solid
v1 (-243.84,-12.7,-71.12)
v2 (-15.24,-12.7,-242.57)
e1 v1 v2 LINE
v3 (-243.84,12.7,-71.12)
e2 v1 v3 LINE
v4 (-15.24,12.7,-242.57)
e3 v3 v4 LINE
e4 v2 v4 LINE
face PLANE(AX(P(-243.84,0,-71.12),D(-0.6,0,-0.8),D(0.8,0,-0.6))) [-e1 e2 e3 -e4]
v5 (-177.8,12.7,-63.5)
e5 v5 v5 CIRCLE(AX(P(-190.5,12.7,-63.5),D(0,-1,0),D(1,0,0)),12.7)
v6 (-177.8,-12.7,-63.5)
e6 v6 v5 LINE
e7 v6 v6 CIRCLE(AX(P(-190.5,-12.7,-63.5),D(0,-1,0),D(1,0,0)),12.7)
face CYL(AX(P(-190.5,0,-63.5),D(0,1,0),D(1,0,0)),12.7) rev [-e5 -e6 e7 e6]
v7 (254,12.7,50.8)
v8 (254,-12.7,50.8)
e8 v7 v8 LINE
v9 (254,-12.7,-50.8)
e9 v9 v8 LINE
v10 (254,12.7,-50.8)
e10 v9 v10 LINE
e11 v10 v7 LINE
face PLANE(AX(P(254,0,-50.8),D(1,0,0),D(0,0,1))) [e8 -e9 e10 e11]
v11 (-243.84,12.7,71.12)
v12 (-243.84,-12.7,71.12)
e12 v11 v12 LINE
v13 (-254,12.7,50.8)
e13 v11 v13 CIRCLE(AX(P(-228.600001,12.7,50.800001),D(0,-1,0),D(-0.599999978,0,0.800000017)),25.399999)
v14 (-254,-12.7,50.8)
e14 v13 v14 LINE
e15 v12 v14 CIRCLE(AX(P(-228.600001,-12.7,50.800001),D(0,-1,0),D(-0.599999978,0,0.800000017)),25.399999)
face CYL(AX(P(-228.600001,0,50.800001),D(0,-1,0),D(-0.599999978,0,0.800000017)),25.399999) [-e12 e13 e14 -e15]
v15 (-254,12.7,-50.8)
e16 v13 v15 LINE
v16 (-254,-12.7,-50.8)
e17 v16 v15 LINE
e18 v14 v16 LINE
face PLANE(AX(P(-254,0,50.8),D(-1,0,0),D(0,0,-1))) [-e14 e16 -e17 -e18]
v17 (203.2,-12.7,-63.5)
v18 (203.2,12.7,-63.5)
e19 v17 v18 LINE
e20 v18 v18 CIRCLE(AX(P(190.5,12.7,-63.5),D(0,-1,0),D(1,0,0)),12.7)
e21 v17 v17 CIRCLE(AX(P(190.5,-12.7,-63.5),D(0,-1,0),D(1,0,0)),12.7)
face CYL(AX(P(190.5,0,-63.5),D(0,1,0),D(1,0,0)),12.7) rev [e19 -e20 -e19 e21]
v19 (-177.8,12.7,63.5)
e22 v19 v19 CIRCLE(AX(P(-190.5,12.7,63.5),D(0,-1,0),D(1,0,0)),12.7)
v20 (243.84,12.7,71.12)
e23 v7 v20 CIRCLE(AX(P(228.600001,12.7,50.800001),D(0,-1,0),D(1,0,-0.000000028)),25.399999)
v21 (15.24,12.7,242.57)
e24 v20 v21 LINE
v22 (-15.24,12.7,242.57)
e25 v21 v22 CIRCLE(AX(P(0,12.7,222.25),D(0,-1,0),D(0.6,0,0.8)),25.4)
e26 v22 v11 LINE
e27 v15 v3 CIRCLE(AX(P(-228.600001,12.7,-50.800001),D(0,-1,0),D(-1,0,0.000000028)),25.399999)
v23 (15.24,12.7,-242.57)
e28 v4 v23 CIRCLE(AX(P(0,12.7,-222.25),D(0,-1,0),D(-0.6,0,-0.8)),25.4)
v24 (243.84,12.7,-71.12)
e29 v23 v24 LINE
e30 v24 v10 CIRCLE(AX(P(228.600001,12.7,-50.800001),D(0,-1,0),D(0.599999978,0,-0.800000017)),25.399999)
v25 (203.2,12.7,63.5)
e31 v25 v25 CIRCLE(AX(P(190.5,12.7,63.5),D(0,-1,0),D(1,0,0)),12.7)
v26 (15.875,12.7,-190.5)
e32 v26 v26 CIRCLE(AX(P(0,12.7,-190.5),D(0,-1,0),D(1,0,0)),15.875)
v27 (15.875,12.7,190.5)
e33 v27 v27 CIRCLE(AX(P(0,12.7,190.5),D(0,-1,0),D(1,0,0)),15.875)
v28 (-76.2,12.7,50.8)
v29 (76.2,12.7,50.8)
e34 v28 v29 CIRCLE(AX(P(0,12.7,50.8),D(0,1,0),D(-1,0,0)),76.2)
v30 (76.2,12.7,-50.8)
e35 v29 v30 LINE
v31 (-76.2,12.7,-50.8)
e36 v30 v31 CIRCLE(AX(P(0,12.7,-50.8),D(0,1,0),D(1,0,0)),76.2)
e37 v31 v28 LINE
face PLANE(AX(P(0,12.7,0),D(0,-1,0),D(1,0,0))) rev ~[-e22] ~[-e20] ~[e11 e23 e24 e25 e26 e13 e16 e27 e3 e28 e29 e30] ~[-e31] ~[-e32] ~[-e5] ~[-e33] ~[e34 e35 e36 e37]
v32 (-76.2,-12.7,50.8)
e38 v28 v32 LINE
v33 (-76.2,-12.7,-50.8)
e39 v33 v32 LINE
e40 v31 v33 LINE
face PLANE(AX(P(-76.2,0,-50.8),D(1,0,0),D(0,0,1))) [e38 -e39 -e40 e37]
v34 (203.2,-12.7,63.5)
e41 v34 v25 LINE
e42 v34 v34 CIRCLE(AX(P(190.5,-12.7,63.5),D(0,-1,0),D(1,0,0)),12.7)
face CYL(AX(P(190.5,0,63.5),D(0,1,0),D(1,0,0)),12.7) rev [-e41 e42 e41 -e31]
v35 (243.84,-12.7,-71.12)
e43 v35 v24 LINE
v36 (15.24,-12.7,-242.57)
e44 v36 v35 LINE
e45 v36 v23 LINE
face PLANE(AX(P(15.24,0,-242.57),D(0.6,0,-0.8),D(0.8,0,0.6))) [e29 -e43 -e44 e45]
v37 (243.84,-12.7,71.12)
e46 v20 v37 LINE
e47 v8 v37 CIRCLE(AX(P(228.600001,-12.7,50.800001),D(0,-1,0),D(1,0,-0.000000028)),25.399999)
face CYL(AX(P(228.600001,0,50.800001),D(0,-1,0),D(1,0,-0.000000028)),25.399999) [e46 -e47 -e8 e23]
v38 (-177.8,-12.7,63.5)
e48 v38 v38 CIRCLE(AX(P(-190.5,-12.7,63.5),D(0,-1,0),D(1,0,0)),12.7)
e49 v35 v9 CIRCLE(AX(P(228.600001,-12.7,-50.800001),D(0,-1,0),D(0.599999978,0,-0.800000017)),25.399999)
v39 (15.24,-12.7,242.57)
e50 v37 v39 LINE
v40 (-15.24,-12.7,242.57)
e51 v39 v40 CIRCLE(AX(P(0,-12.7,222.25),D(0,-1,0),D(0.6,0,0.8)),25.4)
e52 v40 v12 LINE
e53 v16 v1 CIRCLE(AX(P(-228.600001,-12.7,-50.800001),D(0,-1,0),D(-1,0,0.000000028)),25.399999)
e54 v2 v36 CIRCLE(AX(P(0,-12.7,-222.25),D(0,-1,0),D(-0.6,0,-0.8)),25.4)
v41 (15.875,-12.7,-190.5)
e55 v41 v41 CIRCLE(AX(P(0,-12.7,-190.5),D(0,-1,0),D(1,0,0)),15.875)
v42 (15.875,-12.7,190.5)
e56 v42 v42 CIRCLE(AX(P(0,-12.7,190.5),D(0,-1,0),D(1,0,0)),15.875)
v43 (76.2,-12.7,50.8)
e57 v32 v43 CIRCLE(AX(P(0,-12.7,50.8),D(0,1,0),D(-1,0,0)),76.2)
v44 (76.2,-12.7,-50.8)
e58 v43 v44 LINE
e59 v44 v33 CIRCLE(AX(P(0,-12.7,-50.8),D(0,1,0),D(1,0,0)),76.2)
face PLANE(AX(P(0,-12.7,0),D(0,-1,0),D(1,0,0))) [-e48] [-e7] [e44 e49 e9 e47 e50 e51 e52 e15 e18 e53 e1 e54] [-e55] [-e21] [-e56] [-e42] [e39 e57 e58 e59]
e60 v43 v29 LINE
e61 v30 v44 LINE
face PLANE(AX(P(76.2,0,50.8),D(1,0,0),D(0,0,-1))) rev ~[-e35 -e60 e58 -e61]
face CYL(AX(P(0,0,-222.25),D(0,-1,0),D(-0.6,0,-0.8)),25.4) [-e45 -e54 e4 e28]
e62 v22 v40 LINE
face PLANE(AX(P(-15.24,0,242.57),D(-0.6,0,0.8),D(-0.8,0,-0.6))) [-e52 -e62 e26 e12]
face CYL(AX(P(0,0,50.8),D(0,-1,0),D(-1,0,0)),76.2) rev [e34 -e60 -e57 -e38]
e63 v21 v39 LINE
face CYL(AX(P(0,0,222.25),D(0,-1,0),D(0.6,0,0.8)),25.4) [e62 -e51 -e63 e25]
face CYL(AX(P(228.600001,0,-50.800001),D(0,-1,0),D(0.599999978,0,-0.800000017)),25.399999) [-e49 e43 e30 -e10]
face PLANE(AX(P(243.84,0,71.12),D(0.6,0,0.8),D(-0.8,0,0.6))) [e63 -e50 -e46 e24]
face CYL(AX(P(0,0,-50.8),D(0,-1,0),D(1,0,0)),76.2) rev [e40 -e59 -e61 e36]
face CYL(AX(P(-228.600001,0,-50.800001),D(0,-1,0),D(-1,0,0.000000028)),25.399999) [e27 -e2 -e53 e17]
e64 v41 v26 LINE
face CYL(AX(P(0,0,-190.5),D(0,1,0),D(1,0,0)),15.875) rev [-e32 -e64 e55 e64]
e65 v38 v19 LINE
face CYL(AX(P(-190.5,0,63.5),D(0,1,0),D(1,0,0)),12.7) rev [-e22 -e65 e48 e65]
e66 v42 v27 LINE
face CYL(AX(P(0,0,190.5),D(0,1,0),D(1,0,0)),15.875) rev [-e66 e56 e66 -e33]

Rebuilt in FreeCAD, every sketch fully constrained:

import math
import FreeCAD as App
import Part
import Sketcher

V = App.Vector
Q = App.Units.Quantity

doc = App.newDocument("Part")
body = doc.addObject("PartDesign::Body", "Body")

# Sketch on XZ plane
sketch1 = body.newObject("Sketcher::SketchObject", "Sketch")
sketch1.AttachmentSupport = (doc.getObject("XZ_Plane"), [""])
sketch1.MapMode = "FlatFace"
sketch1.addGeometry([
    Part.LineSegment(V(254, -50.8, 0), V(254, 50.8, 0)),  # 0
    Part.ArcOfCircle(Part.Circle(V(228.600001, 50.800001, 0), V(0, 0, 1), 25.399999), math.radians(-0.000002), math.radians(53.130104)),  # 1
    Part.LineSegment(V(243.84, 71.12, 0), V(15.24, 242.57, 0)),  # 2
    Part.ArcOfCircle(Part.Circle(V(0, 222.25, 0), V(0, 0, 1), 25.4), math.radians(53.130102), math.radians(126.869898)),  # 3
    Part.LineSegment(V(-15.24, 242.57, 0), V(-243.84, 71.12, 0)),  # 4
    Part.ArcOfCircle(Part.Circle(V(-228.600001, 50.800001, 0), V(0, 0, 1), 25.399999), math.radians(126.869896), math.radians(180.000002)),  # 5
    Part.LineSegment(V(-254, 50.8, 0), V(-254, -50.8, 0)),  # 6
    Part.ArcOfCircle(Part.Circle(V(-228.600001, -50.800001, 0), V(0, 0, 1), 25.399999), math.radians(179.999998), math.radians(233.130104)),  # 7
    Part.LineSegment(V(-243.84, -71.12, 0), V(-15.24, -242.57, 0)),  # 8
    Part.ArcOfCircle(Part.Circle(V(0, -222.25, 0), V(0, 0, 1), 25.4), math.radians(-126.869898), math.radians(-53.130102)),  # 9
    Part.LineSegment(V(15.24, -242.57, 0), V(243.84, -71.12, 0)),  # 10
    Part.ArcOfCircle(Part.Circle(V(228.600001, -50.800001, 0), V(0, 0, 1), 25.399999), math.radians(-53.130104), math.radians(0.000002)),  # 11
    Part.Circle(V(0, -190.5, 0), V(0, 0, 1), 15.875),  # 12
    Part.Circle(V(-190.5, -63.5, 0), V(0, 0, 1), 12.7),  # 13
    Part.Circle(V(190.5, -63.5, 0), V(0, 0, 1), 12.7),  # 14
    Part.Circle(V(-190.5, 63.5, 0), V(0, 0, 1), 12.7),  # 15
    Part.LineSegment(V(-76.2, -50.8, 0), V(-76.2, 50.8, 0)),  # 16
    Part.ArcOfCircle(Part.Circle(V(0, 50.8, 0), V(0, 0, 1), 76.2), math.radians(0), math.radians(180)),  # 17
    Part.LineSegment(V(76.2, 50.8, 0), V(76.2, -50.8, 0)),  # 18
    Part.ArcOfCircle(Part.Circle(V(0, -50.8, 0), V(0, 0, 1), 76.2), math.radians(180), math.radians(360)),  # 19
    Part.Circle(V(0, 190.5, 0), V(0, 0, 1), 15.875),  # 20
    Part.Circle(V(190.5, 63.5, 0), V(0, 0, 1), 12.7),  # 21
], False)
sketch1.addConstraint([
    Sketcher.Constraint("Coincident", 0, 2, 1, 1),
    Sketcher.Constraint("Coincident", 1, 2, 2, 1),
    Sketcher.Constraint("Coincident", 2, 2, 3, 1),
    Sketcher.Constraint("Coincident", 3, 2, 4, 1),
    Sketcher.Constraint("Coincident", 4, 2, 5, 1),
    Sketcher.Constraint("Coincident", 5, 2, 6, 1),
    Sketcher.Constraint("Coincident", 6, 2, 7, 1),
    Sketcher.Constraint("Coincident", 7, 2, 8, 1),
    Sketcher.Constraint("Coincident", 8, 2, 9, 1),
    Sketcher.Constraint("Coincident", 9, 2, 10, 1),
    Sketcher.Constraint("Coincident", 10, 2, 11, 1),
    Sketcher.Constraint("Coincident", 11, 2, 0, 1),
    Sketcher.Constraint("Coincident", 16, 2, 17, 2),
    Sketcher.Constraint("Coincident", 17, 1, 18, 1),
    Sketcher.Constraint("Coincident", 18, 2, 19, 2),
    Sketcher.Constraint("Coincident", 19, 1, 16, 1),
    Sketcher.Constraint("Vertical", 0),
    Sketcher.Constraint("Vertical", 6),
    Sketcher.Constraint("Vertical", 16),
    Sketcher.Constraint("Vertical", 18),
    Sketcher.Constraint("PointOnObject", 3, 3, -2),
    Sketcher.Constraint("PointOnObject", 9, 3, -2),
    Sketcher.Constraint("PointOnObject", 12, 3, -2),
    Sketcher.Constraint("PointOnObject", 17, 3, -2),
    Sketcher.Constraint("PointOnObject", 20, 3, -2),
    Sketcher.Constraint("Diameter", 13, Q("1 in")),
    Sketcher.Constraint("Diameter", 14, Q("1 in")),
    Sketcher.Constraint("Diameter", 15, Q("1 in")),
    Sketcher.Constraint("Diameter", 21, Q("1 in")),
    Sketcher.Constraint("Radius", 1, Q("0.9999999 in")),
    Sketcher.Constraint("Radius", 3, Q("1 in")),
    Sketcher.Constraint("Radius", 5, Q("0.9999999 in")),
    Sketcher.Constraint("Radius", 7, Q("0.9999999 in")),
    Sketcher.Constraint("Radius", 9, Q("1 in")),
    Sketcher.Constraint("Radius", 11, Q("0.9999999 in")),
    Sketcher.Constraint("Radius", 17, Q("3 in")),
    Sketcher.Constraint("Diameter", 12, Q("1.25 in")),
    Sketcher.Constraint("Diameter", 20, Q("1.25 in")),
    Sketcher.Constraint("DistanceY", 0, 1, 0, 2, Q("4 in")),
    Sketcher.Constraint("DistanceY", 6, 2, 6, 1, Q("4 in")),
    Sketcher.Constraint("DistanceY", 16, 1, 16, 2, Q("4 in")),
    Sketcher.Constraint("DistanceY", 18, 2, 18, 1, Q("4 in")),
    Sketcher.Constraint("DistanceX", -1, 1, 1, 3, Q("9.0000001 in")),
    Sketcher.Constraint("DistanceY", -1, 1, 1, 3, Q("2 in")),
    Sketcher.Constraint("DistanceX", 5, 3, -1, 1, Q("9.0000001 in")),
    Sketcher.Constraint("DistanceY", -1, 1, 5, 3, Q("2 in")),
    Sketcher.Constraint("DistanceY", 7, 3, -1, 1, Q("2 in")),
    Sketcher.Constraint("DistanceY", 11, 3, -1, 1, Q("2 in")),
    Sketcher.Constraint("DistanceY", -1, 1, 17, 3, Q("2 in")),
    Sketcher.Constraint("DistanceY", 19, 3, -1, 1, Q("2 in")),
    Sketcher.Constraint("DistanceY", -1, 1, 0, 2, Q("2 in")),
    Sketcher.Constraint("DistanceY", -1, 1, 5, 2, Q("2 in")),
    Sketcher.Constraint("DistanceY", -1, 1, 16, 2, Q("2 in")),
    Sketcher.Constraint("DistanceY", -1, 1, 17, 1, Q("2 in")),
    Sketcher.Constraint("DistanceY", 12, 3, 13, 3, Q("5 in")),
    Sketcher.Constraint("DistanceY", 12, 3, 14, 3, Q("5 in")),
    Sketcher.Constraint("DistanceY", 13, 3, 15, 3, Q("5 in")),
    Sketcher.Constraint("DistanceY", 15, 3, 20, 3, Q("5 in")),
    Sketcher.Constraint("DistanceY", 14, 3, 21, 3, Q("5 in")),
    Sketcher.Constraint("DistanceY", 12, 3, -1, 1, Q("7.5 in")),
    Sketcher.Constraint("DistanceX", 13, 3, -1, 1, Q("7.5 in")),
    Sketcher.Constraint("DistanceX", -1, 1, 14, 3, Q("7.5 in")),
    Sketcher.Constraint("DistanceX", 15, 3, -1, 1, Q("7.5 in")),
    Sketcher.Constraint("DistanceX", -1, 1, 21, 3, Q("7.5 in")),
    Sketcher.Constraint("DistanceX", -1, 1, 1, 2, Q("9.6 in")),
    Sketcher.Constraint("DistanceX", -1, 1, 2, 2, Q("0.6 in")),
    Sketcher.Constraint("DistanceX", 3, 2, -1, 1, Q("0.6 in")),
    Sketcher.Constraint("DistanceX", 4, 2, -1, 1, Q("9.6 in")),
    Sketcher.Constraint("DistanceX", 7, 2, -1, 1, Q("9.6 in")),
    Sketcher.Constraint("DistanceX", 8, 2, -1, 1, Q("0.6 in")),
    Sketcher.Constraint("DistanceX", -1, 1, 9, 2, Q("0.6 in")),
    Sketcher.Constraint("DistanceX", -1, 1, 10, 2, Q("9.6 in")),
    Sketcher.Constraint("DistanceY", 9, 3, 3, 3, Q("17.5 in")),
    Sketcher.Constraint("Distance", 2, Q("11.25 in")),
])
pad1 = body.newObject("PartDesign::Pad", "Pad")
pad1.Profile = sketch1
pad1.Length = Q("1 in")
pad1.Midplane = True

doc.recompute()
